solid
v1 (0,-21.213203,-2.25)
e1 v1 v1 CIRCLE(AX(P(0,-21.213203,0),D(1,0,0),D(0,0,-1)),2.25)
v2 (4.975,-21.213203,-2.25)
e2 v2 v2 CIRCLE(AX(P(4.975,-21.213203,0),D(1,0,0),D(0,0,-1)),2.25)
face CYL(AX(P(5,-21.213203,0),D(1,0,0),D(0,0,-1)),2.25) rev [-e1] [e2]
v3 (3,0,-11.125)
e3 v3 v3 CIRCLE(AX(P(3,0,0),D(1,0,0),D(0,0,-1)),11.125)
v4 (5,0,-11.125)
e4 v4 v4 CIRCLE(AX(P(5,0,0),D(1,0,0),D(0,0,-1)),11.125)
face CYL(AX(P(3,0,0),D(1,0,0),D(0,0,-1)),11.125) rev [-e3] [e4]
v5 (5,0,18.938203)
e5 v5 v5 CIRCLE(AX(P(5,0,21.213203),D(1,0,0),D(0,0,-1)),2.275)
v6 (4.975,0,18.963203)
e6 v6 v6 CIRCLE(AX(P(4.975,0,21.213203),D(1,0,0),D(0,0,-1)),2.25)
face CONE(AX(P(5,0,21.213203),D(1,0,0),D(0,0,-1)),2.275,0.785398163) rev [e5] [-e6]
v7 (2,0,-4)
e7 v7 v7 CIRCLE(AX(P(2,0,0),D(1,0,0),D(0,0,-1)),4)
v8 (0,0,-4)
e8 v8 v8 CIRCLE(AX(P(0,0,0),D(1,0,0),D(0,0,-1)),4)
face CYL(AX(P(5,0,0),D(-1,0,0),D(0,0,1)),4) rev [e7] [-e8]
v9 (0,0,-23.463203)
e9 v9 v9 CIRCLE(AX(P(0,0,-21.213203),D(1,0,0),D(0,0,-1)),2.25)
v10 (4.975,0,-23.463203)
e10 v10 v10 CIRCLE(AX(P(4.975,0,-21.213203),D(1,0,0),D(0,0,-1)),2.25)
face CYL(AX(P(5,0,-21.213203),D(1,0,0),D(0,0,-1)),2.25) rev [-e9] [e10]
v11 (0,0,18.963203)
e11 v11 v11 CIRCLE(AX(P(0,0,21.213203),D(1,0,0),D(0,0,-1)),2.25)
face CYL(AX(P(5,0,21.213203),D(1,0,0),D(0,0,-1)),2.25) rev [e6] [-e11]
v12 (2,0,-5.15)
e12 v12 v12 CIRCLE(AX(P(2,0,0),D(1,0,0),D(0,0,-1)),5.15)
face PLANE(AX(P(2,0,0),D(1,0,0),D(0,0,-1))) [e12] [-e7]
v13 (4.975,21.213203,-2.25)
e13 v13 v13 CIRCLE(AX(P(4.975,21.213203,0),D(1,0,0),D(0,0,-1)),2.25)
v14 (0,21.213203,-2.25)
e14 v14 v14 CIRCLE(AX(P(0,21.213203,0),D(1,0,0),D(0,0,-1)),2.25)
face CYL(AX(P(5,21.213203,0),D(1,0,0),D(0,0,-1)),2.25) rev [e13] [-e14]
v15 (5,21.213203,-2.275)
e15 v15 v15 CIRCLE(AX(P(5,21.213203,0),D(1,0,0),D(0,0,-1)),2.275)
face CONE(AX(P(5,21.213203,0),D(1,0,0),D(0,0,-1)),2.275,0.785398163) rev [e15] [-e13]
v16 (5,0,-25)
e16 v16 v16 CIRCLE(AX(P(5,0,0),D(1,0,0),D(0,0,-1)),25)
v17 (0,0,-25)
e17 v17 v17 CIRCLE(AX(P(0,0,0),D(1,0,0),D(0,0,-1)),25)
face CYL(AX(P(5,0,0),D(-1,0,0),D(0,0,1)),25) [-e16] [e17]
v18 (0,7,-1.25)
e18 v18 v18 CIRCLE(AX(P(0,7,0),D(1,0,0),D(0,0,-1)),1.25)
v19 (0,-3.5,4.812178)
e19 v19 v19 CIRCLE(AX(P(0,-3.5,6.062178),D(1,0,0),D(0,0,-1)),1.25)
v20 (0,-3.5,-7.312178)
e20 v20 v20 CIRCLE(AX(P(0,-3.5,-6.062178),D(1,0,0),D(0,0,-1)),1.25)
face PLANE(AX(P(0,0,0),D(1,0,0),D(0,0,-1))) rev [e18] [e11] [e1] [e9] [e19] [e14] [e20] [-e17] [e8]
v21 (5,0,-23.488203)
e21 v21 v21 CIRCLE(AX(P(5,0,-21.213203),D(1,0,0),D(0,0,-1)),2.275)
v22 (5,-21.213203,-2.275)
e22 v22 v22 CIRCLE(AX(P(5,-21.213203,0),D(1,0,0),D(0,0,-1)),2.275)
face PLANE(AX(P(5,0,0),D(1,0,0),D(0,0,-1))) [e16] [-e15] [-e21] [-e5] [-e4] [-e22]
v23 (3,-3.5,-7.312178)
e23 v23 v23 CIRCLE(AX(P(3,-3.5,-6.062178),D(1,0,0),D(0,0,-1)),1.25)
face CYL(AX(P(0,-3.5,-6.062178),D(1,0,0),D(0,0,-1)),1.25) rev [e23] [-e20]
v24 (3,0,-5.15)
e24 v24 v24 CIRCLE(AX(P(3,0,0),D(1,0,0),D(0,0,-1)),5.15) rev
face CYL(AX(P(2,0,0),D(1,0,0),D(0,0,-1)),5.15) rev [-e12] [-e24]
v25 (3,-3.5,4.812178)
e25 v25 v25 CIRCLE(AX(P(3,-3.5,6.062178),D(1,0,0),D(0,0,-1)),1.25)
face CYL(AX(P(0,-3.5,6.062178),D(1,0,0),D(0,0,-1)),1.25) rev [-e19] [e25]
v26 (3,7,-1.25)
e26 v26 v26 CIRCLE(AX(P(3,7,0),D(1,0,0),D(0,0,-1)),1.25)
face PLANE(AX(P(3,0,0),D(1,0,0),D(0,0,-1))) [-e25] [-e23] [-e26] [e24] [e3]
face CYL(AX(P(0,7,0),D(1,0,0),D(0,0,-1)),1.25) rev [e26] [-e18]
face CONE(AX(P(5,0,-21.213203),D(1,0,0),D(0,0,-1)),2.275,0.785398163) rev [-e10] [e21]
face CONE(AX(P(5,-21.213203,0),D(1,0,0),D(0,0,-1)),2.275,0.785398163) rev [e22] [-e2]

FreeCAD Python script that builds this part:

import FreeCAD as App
import Part
import Sketcher

V = App.Vector
Q = App.Units.Quantity

doc = App.newDocument("Part")
params = doc.addObject("Spreadsheet::Sheet", "Params")
for row, (alias, value) in enumerate([
    ("sketch1_diameter", "50 mm"),
    ("sketch1_diameter2", "8 mm"),
    ("pad1_length", "5 mm"),
    ("sketch2_diameter", "10.3 mm"),
    ("pocket1_length", "3 mm"),
    ("sketch3_diameter", "22.25 mm"),
    ("pocket2_length", "2 mm"),
    ("sketch4_diameter", "2.5 mm"),
    ("sketch5_diameter", "4.5 mm"),
    ("hole_diameter", "4.5 mm"),
    ("hole_depth", "7.6 mm"),
    ("hole_csink_diameter", "4.55 mm"),
], start=1):
    params.set(f"A{row}", alias)
    params.set(f"B{row}", "=" + value)
    params.setAlias(f"B{row}", alias)

body = doc.addObject("PartDesign::Body", "Body")

# Sketch on YZ plane
sketch1 = body.newObject("Sketcher::SketchObject", "Sketch")
sketch1.AttachmentSupport = (doc.getObject("YZ_Plane"), [""])
sketch1.MapMode = "FlatFace"
sketch1.addGeometry(Part.Circle(V(0, 0, 0), V(0, 0, 1), 25), False)
sketch1.addGeometry(Part.Circle(V(0, 0, 0), V(0, 0, 1), 4), False)
sketch1.addConstraint(Sketcher.Constraint("Coincident", 0, 3, -1, 1))
sketch1.addConstraint(Sketcher.Constraint("Coincident", 1, 3, -1, 1))
sketch1.addConstraint(Sketcher.Constraint("Diameter", 0, Q("50 mm")))
sketch1.addConstraint(Sketcher.Constraint("Diameter", 1, Q("8 mm")))
sketch1.setExpression("Constraints[2]", "Params.sketch1_diameter")
sketch1.setExpression("Constraints[3]", "Params.sketch1_diameter2")
pad1 = body.newObject("PartDesign::Pad", "Pad")
pad1.Profile = sketch1
pad1.setExpression("Length", "Params.pad1_length")

# Sketch on YZ plane
sketch2 = body.newObject("Sketcher::SketchObject", "Sketch001")
sketch2.AttachmentSupport = (doc.getObject("YZ_Plane"), [""])
sketch2.MapMode = "FlatFace"
sketch2.AttachmentOffset = App.Placement(V(0, 0, 5), App.Rotation())
sketch2.addGeometry(Part.Circle(V(0, 0, 0), V(0, 0, 1), 5), False)
sketch2.addConstraint(Sketcher.Constraint("Coincident", 0, 3, -1, 1))
sketch2.addConstraint(Sketcher.Constraint("Diameter", 0, Q("10.3 mm")))
sketch2.setExpression("Constraints[1]", "Params.sketch2_diameter")
pocket1 = body.newObject("PartDesign::Pocket", "Pocket")
pocket1.Profile = sketch2
pocket1.setExpression("Length", "Params.pocket1_length")

# Sketch on YZ plane
sketch3 = body.newObject("Sketcher::SketchObject", "Sketch002")
sketch3.AttachmentSupport = (doc.getObject("YZ_Plane"), [""])
sketch3.MapMode = "FlatFace"
sketch3.AttachmentOffset = App.Placement(V(0, 0, 5), App.Rotation())
sketch3.addGeometry(Part.Circle(V(0, 0, 0), V(0, 0, 1), 11), False)
sketch3.addConstraint(Sketcher.Constraint("Coincident", 0, 3, -1, 1))
sketch3.addConstraint(Sketcher.Constraint("Diameter", 0, Q("22.25 mm")))
sketch3.setExpression("Constraints[1]", "Params.sketch3_diameter")
pocket2 = body.newObject("PartDesign::Pocket", "Pocket001")
pocket2.Profile = sketch3
pocket2.setExpression("Length", "Params.pocket2_length")

# Sketch on YZ plane
sketch4 = body.newObject("Sketcher::SketchObject", "Sketch003")
sketch4.AttachmentSupport = (doc.getObject("YZ_Plane"), [""])
sketch4.MapMode = "FlatFace"
sketch4.AttachmentOffset = App.Placement(V(0, 0, 3), App.Rotation())
sketch4.addGeometry(Part.Circle(V(7, 0, 0), V(0, 0, 1), 1.2), False)
sketch4.addGeometry(Part.Circle(V(-3.5, -6.1, 0), V(0, 0, 1), 1.2), False)
sketch4.addGeometry(Part.Circle(V(-3.5, 6.1, 0), V(0, 0, 1), 1.2), False)
sketch4.addConstraint(Sketcher.Constraint("Equal", 0, 1))
sketch4.addConstraint(Sketcher.Constraint("Equal", 1, 2))
sketch4.addConstraint(Sketcher.Constraint("Symmetric", 1, 3, 2, 3, -1))
sketch4.addConstraint(Sketcher.Constraint("PointOnObject", 0, 3, -1))
sketch4.addConstraint(Sketcher.Constraint("Diameter", 0, Q("2.5 mm")))
sketch4.addConstraint(Sketcher.Constraint("DistanceX", -1, 1, 0, 3, Q("7 mm")))
sketch4.addConstraint(Sketcher.Constraint("DistanceX", 1, 3, -1, 1, Q("3.5 mm")))
sketch4.addConstraint(Sketcher.Constraint("DistanceY", 1, 3, -1, 1, Q("6.062178 mm")))
sketch4.setExpression("Constraints[4]", "Params.sketch4_diameter")
pocket3 = body.newObject("PartDesign::Pocket", "Pocket002")
pocket3.Profile = sketch4
pocket3.Type = "ThroughAll"

# Sketch on YZ plane
sketch5 = body.newObject("Sketcher::SketchObject", "Sketch004")
sketch5.AttachmentSupport = (doc.getObject("YZ_Plane"), [""])
sketch5.MapMode = "FlatFace"
sketch5.AttachmentOffset = App.Placement(V(0, 0, 5), App.Rotation())
sketch5.addGeometry(Part.Circle(V(21.2, 0, 0), V(0, 0, 1), 2.2), False)
sketch5.addGeometry(Part.Circle(V(0, -21.2, 0), V(0, 0, 1), 2.2), False)
sketch5.addGeometry(Part.Circle(V(0, 21.2, 0), V(0, 0, 1), 2.2), False)
sketch5.addGeometry(Part.Circle(V(-21.2, 0, 0), V(0, 0, 1), 2.2), False)
sketch5.addConstraint(Sketcher.Constraint("Equal", 0, 1))
sketch5.addConstraint(Sketcher.Constraint("Equal", 1, 2))
sketch5.addConstraint(Sketcher.Constraint("Equal", 2, 3))
sketch5.addConstraint(Sketcher.Constraint("Symmetric", 1, 3, 2, 3, -1, 1))
sketch5.addConstraint(Sketcher.Constraint("Symmetric", 0, 3, 3, 3, -1, 1))
sketch5.addConstraint(Sketcher.Constraint("PointOnObject", 0, 3, -1))
sketch5.addConstraint(Sketcher.Constraint("PointOnObject", 1, 3, -2))
sketch5.addConstraint(Sketcher.Constraint("Diameter", 0, Q("4.5 mm")))
sketch5.addConstraint(Sketcher.Constraint("DistanceX", -1, 1, 0, 3, Q("21.213203 mm")))
sketch5.addConstraint(Sketcher.Constraint("DistanceY", 1, 3, -1, 1, Q("21.213203 mm")))
sketch5.setExpression("Constraints[7]", "Params.sketch5_diameter")
doc.recompute()
hole = body.newObject("PartDesign::Hole", "Hole")
hole.Profile = sketch5
hole.ThreadType = "None"
hole.setExpression("Diameter", "Params.hole_diameter")
hole.DepthType = "Dimension"
hole.setExpression("Depth", "Params.hole_depth")
hole.DrillPoint = "Angled"
hole.DrillPointAngle = 118
hole.HoleCutType = "Countersink"
hole.setExpression("HoleCutDiameter", "Params.hole_csink_diameter")
hole.HoleCutCountersinkAngle = 90

doc.recompute()
